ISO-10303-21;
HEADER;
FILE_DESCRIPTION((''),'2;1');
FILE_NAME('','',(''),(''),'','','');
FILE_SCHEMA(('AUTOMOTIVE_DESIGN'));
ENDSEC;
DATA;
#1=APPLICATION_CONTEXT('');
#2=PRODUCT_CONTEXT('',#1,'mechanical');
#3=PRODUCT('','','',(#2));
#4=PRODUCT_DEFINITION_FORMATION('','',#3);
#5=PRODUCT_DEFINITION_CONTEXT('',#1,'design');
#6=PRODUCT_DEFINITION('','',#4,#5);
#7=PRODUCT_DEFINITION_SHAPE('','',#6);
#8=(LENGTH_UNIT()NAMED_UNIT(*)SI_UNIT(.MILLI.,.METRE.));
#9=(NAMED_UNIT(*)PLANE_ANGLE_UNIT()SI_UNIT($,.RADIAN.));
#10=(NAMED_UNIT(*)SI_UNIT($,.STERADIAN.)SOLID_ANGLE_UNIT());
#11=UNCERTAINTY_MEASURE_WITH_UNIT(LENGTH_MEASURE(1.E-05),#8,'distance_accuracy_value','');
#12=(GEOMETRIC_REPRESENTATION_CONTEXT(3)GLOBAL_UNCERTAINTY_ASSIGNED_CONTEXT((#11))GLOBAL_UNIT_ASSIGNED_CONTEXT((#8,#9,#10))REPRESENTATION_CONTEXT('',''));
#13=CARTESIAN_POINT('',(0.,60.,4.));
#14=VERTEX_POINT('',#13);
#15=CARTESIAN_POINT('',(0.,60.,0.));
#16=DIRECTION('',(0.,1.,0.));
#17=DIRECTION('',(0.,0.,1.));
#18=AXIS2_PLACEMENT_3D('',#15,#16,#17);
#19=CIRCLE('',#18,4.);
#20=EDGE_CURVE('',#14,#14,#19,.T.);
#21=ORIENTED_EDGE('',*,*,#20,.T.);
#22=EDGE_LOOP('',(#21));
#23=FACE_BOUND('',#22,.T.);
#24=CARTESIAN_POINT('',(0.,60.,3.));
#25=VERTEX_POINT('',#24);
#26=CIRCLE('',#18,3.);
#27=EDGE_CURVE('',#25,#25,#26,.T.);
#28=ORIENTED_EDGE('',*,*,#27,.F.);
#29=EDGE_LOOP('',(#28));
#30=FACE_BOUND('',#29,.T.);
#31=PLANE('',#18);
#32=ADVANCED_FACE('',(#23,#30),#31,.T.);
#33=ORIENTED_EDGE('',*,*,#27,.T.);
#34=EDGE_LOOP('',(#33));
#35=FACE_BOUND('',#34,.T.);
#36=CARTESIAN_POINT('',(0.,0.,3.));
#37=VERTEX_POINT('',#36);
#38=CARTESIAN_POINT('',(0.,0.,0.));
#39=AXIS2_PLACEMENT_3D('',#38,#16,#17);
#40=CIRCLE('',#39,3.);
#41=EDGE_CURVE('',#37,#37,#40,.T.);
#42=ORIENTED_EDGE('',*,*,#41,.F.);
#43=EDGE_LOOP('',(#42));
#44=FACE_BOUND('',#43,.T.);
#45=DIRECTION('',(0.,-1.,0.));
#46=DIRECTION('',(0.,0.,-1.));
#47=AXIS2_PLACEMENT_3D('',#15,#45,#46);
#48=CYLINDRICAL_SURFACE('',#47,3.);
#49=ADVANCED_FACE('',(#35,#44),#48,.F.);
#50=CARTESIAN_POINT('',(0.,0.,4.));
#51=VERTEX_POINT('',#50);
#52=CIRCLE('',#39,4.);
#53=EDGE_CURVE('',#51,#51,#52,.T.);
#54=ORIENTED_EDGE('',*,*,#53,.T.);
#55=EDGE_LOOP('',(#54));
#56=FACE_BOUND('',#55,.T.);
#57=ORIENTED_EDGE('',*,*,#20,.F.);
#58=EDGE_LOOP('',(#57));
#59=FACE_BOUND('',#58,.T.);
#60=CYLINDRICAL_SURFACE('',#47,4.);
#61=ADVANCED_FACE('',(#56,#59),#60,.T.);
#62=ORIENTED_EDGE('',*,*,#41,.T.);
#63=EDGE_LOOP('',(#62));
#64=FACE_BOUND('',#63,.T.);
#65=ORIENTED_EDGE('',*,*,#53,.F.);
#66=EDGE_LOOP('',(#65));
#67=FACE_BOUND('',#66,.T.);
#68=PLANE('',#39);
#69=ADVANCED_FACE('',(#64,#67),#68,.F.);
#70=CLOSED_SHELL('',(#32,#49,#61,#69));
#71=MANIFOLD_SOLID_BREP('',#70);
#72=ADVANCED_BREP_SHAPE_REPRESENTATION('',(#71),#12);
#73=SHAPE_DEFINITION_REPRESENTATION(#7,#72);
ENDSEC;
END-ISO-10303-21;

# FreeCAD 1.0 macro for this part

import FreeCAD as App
import Part
import Sketcher

V = App.Vector

doc = App.newDocument("Part")
body = doc.addObject("PartDesign::Body", "Body")

sketch1 = doc.addObject("Sketcher::SketchObject", "Sketch")
body.addObject(sketch1)
sketch1.AttachmentSupport = (doc.XZ_Plane, [""])
sketch1.MapMode = "FlatFace"
sketch1.addGeometry(Part.Circle(V(0, 0, 0), V(0, 0, 1), 4), False)
sketch1.addGeometry(Part.Circle(V(0, 0, 0), V(0, 0, 1), 3), False)
sketch1.addConstraint(Sketcher.Constraint("Coincident", 0, 3, -1, 1))
sketch1.addConstraint(Sketcher.Constraint("Coincident", 1, 3, -1, 1))
sketch1.addConstraint(Sketcher.Constraint("Diameter", 0, 8.0))
sketch1.addConstraint(Sketcher.Constraint("Diameter", 1, 6.0))
pad1 = doc.addObject("PartDesign::Pad", "Pad")
body.addObject(pad1)
pad1.Profile = sketch1
pad1.Length = 60
pad1.Reversed = True

doc.recompute()
